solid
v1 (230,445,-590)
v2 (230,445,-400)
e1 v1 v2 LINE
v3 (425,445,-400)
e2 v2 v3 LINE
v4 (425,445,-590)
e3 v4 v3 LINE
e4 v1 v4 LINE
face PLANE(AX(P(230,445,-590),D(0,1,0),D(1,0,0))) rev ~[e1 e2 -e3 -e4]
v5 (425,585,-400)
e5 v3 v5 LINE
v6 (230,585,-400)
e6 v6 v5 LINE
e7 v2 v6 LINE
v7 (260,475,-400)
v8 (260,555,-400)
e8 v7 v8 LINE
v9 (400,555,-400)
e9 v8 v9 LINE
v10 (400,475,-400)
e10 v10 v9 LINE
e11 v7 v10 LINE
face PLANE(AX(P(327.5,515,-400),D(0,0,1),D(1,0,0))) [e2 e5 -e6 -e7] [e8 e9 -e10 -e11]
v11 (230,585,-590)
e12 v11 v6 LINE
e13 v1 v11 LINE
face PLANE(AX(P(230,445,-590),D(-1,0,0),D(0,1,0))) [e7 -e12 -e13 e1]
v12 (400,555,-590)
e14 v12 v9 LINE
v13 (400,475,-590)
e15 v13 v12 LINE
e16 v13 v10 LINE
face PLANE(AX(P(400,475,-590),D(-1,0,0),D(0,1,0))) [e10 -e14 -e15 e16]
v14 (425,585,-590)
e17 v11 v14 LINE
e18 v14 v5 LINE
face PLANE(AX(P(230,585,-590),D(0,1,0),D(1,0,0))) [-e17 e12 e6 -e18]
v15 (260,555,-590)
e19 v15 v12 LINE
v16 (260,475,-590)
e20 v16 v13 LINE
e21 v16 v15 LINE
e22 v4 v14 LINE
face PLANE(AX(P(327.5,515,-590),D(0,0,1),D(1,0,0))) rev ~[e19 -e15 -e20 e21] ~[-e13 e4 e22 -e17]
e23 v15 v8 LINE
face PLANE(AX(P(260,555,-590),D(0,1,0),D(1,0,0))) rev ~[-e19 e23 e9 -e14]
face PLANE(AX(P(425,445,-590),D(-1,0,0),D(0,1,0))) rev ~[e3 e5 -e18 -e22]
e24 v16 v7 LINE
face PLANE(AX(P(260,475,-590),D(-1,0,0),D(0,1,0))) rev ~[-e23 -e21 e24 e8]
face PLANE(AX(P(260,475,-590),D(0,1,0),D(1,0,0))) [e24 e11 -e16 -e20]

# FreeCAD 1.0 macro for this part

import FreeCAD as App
import Part
import Sketcher


def add_polygon(sketch, points):
    """Adds a closed chain of lines whose ends are joined by coincident constraints."""
    first, n = sketch.GeometryCount, len(points)
    for a, b in zip(points, points[1:] + points[:1]):
        sketch.addGeometry(Part.LineSegment(App.Vector(*a, 0), App.Vector(*b, 0)), False)
    for i in range(n):
        sketch.addConstraint(Sketcher.Constraint("Coincident", first + i, 2, first + (i + 1) % n, 1))

doc = App.newDocument("Part")
body = doc.addObject("PartDesign::Body", "Body")

sketch1 = body.newObject("Sketcher::SketchObject", "Sketch")
sketch1.AttachmentSupport = (doc.getObject("XY_Plane"), [""])
sketch1.MapMode = "FlatFace"
add_polygon(sketch1, [(220, 110), (220, 30), (360, 30), (360, 110)])
sketch1.addConstraint(Sketcher.Constraint("Vertical", 0))
sketch1.addConstraint(Sketcher.Constraint("Horizontal", 1))
sketch1.addConstraint(Sketcher.Constraint("Vertical", 2))
sketch1.addConstraint(Sketcher.Constraint("Horizontal", 3))
sketch1.addConstraint(Sketcher.Constraint("DistanceX", 1, 1, 1, 2, 140.0))
sketch1.addConstraint(Sketcher.Constraint("DistanceY", 0, 2, 0, 1, 80.0))
sketch1.addConstraint(Sketcher.Constraint("DistanceX", -1, 1, 0, 2, 220.0))
sketch1.addConstraint(Sketcher.Constraint("DistanceY", -1, 1, 0, 2, 30.0))
pad1 = body.newObject("PartDesign::Pad", "Pad")
pad1.Profile = sketch1
pad1.Length = 190
body2 = doc.addObject("PartDesign::Body", "Body001")
body2.AllowCompound = True

sketch2 = body2.newObject("Sketcher::SketchObject", "Sketch001")
sketch2.AttachmentSupport = (doc.getObject("XY_Plane001"), [""])
sketch2.MapMode = "FlatFace"
add_polygon(sketch2, [(30, 110), (30, 30), (170, 30), (170, 110)])
sketch2.addConstraint(Sketcher.Constraint("Vertical", 0))
sketch2.addConstraint(Sketcher.Constraint("Horizontal", 1))
sketch2.addConstraint(Sketcher.Constraint("Vertical", 2))
sketch2.addConstraint(Sketcher.Constraint("Horizontal", 3))
sketch2.addConstraint(Sketcher.Constraint("DistanceX", 1, 1, 1, 2, 140.0))
sketch2.addConstraint(Sketcher.Constraint("DistanceY", 0, 2, 0, 1, 80.0))
sketch2.addConstraint(Sketcher.Constraint("DistanceX", -1, 1, 0, 2, 30.0))
sketch2.addConstraint(Sketcher.Constraint("DistanceY", -1, 1, 0, 2, 30.0))
pad2 = body2.newObject("PartDesign::Pad", "Pad001")
pad2.Profile = sketch2
pad2.Length = 190
doc.recompute()

boolean = body2.newObject("PartDesign::Boolean", "Boolean")
boolean.Type = "Fuse"
boolean.addObjects([body])
body3 = doc.addObject("PartDesign::Body", "Body002")

sketch3 = body3.newObject("Sketcher::SketchObject", "Sketch002")
sketch3.AttachmentSupport = (doc.getObject("XY_Plane002"), [""])
sketch3.MapMode = "FlatFace"
add_polygon(sketch3, [(0, 140), (0, 0), (195, 0), (195, 140)])
sketch3.addConstraint(Sketcher.Constraint("Vertical", 0))
sketch3.addConstraint(Sketcher.Constraint("Horizontal", 1))
sketch3.addConstraint(Sketcher.Constraint("Vertical", 2))
sketch3.addConstraint(Sketcher.Constraint("Horizontal", 3))
sketch3.addConstraint(Sketcher.Constraint("Coincident", 0, 2, -1, 1))
sketch3.addConstraint(Sketcher.Constraint("DistanceX", 1, 1, 1, 2, 195.0))
sketch3.addConstraint(Sketcher.Constraint("DistanceY", 0, 2, 0, 1, 140.0))
pad3 = body3.newObject("PartDesign::Pad", "Pad002")
pad3.Profile = sketch3
pad3.Length = 190
doc.recompute()

boolean2 = body3.newObject("PartDesign::Boolean", "Boolean001")
boolean2.Type = "Cut"
boolean2.addObjects([body2])
body4 = doc.addObject("PartDesign::Body", "Body003")
doc.recompute()

body3.Placement = App.Placement(App.Vector(230, 445, -590), App.Rotation(App.Vector(0, 0, 1), 0))
boolean3 = body4.newObject("PartDesign::Boolean", "Boolean002")
boolean3.Type = "Fuse"
boolean3.addObjects([body3])

doc.recompute()
